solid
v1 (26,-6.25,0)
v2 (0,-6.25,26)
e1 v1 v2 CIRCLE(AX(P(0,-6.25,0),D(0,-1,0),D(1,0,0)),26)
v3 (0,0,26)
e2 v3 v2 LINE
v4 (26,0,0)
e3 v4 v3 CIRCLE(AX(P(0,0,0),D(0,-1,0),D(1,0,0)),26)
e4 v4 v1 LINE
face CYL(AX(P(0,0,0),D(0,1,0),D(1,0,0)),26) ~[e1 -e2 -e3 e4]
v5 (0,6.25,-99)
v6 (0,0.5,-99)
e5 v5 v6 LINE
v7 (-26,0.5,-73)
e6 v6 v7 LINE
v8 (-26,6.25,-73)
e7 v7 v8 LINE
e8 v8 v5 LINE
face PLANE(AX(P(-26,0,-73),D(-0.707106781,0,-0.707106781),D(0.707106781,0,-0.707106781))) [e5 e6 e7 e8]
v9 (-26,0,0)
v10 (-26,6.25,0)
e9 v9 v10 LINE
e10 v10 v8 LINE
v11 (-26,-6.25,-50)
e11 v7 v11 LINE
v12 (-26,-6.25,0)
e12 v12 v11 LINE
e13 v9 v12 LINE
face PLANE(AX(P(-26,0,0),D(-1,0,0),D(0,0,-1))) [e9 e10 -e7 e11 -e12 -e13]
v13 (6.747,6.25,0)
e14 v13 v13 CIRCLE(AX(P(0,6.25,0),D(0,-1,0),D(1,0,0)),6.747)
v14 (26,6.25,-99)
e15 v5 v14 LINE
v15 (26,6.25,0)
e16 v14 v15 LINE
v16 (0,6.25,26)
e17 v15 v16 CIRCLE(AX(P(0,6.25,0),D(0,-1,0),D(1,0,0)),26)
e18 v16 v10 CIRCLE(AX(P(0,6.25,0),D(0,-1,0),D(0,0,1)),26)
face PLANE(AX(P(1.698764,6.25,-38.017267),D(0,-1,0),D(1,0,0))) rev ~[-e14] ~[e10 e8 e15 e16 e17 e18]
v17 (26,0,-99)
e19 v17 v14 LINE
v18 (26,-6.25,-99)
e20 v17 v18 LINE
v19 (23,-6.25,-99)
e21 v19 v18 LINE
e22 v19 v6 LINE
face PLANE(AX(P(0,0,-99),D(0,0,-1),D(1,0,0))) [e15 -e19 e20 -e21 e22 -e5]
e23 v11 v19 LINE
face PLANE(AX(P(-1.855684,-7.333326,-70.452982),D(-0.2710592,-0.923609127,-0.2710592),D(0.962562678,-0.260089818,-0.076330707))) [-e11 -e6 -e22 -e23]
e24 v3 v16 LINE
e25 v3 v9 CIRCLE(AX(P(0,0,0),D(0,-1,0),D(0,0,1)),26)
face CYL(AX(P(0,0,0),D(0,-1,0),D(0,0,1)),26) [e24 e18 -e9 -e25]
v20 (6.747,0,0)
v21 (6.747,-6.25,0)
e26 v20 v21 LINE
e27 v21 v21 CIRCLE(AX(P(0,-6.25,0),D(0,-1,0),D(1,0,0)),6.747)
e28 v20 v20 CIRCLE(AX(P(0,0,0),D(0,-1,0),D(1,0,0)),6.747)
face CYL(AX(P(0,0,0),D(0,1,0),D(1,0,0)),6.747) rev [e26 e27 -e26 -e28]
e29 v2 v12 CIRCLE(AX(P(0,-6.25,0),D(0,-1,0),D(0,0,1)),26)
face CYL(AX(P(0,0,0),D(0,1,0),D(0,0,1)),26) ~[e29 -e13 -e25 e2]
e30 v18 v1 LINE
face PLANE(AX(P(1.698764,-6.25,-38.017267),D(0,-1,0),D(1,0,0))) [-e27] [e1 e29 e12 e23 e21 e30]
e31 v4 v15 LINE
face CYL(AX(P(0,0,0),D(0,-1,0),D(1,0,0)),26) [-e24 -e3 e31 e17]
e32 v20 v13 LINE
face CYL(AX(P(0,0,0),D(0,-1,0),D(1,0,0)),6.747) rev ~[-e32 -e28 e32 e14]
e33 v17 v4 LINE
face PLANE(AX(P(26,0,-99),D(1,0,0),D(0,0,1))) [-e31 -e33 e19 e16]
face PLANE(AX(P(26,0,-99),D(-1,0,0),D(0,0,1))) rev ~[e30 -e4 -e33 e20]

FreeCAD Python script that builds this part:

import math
import FreeCAD as App
import Part
import Sketcher
from FreeCAD import Vector


def add_polygon(sketch, points):
    """Adds a closed chain of lines whose ends are joined by coincident constraints."""
    first, n = sketch.GeometryCount, len(points)
    for a, b in zip(points, points[1:] + points[:1]):
        sketch.addGeometry(Part.LineSegment(App.Vector(*a, 0), App.Vector(*b, 0)), False)
    for i in range(n):
        sketch.addConstraint(Sketcher.Constraint("Coincident", first + i, 2, first + (i + 1) % n, 1))

doc = App.newDocument("Part")
body = doc.addObject("PartDesign::Body", "Body")

sketch1 = body.newObject("Sketcher::SketchObject", "Sketch")
sketch1.AttachmentSupport = (doc.getObject("XZ_Plane"), [""])
sketch1.MapMode = "FlatFace"
sketch1.addGeometry([
    Part.LineSegment(Vector(-26, -73, 0), Vector(0, -99, 0)),
    Part.LineSegment(Vector(0, -99, 0), Vector(26, -99, 0)),
    Part.LineSegment(Vector(26, -99, 0), Vector(26, 0, 0)),
    Part.ArcOfCircle(Part.Circle(Vector(0, 0, 0), Vector(0, 0, 1), 26), math.radians(0), math.radians(90)),
    Part.ArcOfCircle(Part.Circle(Vector(0, 0, 0), Vector(0, 0, 1), 26), math.radians(90), math.radians(180)),
    Part.LineSegment(Vector(-26, 0, 0), Vector(-26, -73, 0)),
    Part.Circle(Vector(0, 0, 0), Vector(0, 0, 1), 6.747),
], False)
sketch1.addConstraint([
    Sketcher.Constraint("Coincident", 0, 2, 1, 1),
    Sketcher.Constraint("Coincident", 1, 2, 2, 1),
    Sketcher.Constraint("Tangent", 2, 2, 3, 1),
    Sketcher.Constraint("Tangent", 3, 2, 4, 1),
    Sketcher.Constraint("Tangent", 4, 2, 5, 1),
    Sketcher.Constraint("Coincident", 5, 2, 0, 1),
    Sketcher.Constraint("Horizontal", 1),
    Sketcher.Constraint("Vertical", 2),
    Sketcher.Constraint("Vertical", 5),
    Sketcher.Constraint("Coincident", 3, 3, -1, 1),
    Sketcher.Constraint("Coincident", 6, 3, -1, 1),
    Sketcher.Constraint("Equal", 3, 4),
    Sketcher.Constraint("PointOnObject", 0, 2, -2),
    Sketcher.Constraint("PointOnObject", 3, 2, -2),
    Sketcher.Constraint("Radius", 3, 26.0),
    Sketcher.Constraint("DistanceY", 2, 1, 2, 2, 99.0),
    Sketcher.Constraint("DistanceY", 5, 2, 5, 1, 73.0),
    Sketcher.Constraint("Diameter", 6, 13.494),
])
pad1 = body.newObject("PartDesign::Pad", "Pad")
pad1.Profile = sketch1
pad1.Length = 12.5
pad1.Midplane = True

sketch2 = body.newObject("Sketcher::SketchObject", "Sketch001")
sketch2.Placement = App.Placement(Vector(-7.14866, -24.358395, -7.14866), App.Rotation(Vector(0.962562678, -0.260089818, -0.076330707), Vector(0, -0.28160161, 0.959531413), Vector(-0.2710592, -0.923609127, -0.2710592), "ZXY"))
add_polygon(sketch2, [(-23.713212, -34.610446), (-23.713212, -96.463099), (34.710888, -96.463099), (34.710888, -34.610446)])
sketch2.addConstraint([
    Sketcher.Constraint("Vertical", 0),
    Sketcher.Constraint("Horizontal", 1),
    Sketcher.Constraint("Vertical", 2),
    Sketcher.Constraint("Horizontal", 3),
    Sketcher.Constraint("DistanceX", 1, 1, 1, 2, 58.4241),
    Sketcher.Constraint("DistanceY", 0, 2, -1, 1, 96.463099),
    Sketcher.Constraint("DistanceY", 0, 2, 0, 1, 61.852652),
    Sketcher.Constraint("DistanceX", 0, 2, -1, 1, 23.713212),
])
pocket1 = body.newObject("PartDesign::Pocket", "Pocket")
pocket1.Profile = sketch2
pocket1.Length = 25
pocket1.Reversed = True

doc.recompute()
